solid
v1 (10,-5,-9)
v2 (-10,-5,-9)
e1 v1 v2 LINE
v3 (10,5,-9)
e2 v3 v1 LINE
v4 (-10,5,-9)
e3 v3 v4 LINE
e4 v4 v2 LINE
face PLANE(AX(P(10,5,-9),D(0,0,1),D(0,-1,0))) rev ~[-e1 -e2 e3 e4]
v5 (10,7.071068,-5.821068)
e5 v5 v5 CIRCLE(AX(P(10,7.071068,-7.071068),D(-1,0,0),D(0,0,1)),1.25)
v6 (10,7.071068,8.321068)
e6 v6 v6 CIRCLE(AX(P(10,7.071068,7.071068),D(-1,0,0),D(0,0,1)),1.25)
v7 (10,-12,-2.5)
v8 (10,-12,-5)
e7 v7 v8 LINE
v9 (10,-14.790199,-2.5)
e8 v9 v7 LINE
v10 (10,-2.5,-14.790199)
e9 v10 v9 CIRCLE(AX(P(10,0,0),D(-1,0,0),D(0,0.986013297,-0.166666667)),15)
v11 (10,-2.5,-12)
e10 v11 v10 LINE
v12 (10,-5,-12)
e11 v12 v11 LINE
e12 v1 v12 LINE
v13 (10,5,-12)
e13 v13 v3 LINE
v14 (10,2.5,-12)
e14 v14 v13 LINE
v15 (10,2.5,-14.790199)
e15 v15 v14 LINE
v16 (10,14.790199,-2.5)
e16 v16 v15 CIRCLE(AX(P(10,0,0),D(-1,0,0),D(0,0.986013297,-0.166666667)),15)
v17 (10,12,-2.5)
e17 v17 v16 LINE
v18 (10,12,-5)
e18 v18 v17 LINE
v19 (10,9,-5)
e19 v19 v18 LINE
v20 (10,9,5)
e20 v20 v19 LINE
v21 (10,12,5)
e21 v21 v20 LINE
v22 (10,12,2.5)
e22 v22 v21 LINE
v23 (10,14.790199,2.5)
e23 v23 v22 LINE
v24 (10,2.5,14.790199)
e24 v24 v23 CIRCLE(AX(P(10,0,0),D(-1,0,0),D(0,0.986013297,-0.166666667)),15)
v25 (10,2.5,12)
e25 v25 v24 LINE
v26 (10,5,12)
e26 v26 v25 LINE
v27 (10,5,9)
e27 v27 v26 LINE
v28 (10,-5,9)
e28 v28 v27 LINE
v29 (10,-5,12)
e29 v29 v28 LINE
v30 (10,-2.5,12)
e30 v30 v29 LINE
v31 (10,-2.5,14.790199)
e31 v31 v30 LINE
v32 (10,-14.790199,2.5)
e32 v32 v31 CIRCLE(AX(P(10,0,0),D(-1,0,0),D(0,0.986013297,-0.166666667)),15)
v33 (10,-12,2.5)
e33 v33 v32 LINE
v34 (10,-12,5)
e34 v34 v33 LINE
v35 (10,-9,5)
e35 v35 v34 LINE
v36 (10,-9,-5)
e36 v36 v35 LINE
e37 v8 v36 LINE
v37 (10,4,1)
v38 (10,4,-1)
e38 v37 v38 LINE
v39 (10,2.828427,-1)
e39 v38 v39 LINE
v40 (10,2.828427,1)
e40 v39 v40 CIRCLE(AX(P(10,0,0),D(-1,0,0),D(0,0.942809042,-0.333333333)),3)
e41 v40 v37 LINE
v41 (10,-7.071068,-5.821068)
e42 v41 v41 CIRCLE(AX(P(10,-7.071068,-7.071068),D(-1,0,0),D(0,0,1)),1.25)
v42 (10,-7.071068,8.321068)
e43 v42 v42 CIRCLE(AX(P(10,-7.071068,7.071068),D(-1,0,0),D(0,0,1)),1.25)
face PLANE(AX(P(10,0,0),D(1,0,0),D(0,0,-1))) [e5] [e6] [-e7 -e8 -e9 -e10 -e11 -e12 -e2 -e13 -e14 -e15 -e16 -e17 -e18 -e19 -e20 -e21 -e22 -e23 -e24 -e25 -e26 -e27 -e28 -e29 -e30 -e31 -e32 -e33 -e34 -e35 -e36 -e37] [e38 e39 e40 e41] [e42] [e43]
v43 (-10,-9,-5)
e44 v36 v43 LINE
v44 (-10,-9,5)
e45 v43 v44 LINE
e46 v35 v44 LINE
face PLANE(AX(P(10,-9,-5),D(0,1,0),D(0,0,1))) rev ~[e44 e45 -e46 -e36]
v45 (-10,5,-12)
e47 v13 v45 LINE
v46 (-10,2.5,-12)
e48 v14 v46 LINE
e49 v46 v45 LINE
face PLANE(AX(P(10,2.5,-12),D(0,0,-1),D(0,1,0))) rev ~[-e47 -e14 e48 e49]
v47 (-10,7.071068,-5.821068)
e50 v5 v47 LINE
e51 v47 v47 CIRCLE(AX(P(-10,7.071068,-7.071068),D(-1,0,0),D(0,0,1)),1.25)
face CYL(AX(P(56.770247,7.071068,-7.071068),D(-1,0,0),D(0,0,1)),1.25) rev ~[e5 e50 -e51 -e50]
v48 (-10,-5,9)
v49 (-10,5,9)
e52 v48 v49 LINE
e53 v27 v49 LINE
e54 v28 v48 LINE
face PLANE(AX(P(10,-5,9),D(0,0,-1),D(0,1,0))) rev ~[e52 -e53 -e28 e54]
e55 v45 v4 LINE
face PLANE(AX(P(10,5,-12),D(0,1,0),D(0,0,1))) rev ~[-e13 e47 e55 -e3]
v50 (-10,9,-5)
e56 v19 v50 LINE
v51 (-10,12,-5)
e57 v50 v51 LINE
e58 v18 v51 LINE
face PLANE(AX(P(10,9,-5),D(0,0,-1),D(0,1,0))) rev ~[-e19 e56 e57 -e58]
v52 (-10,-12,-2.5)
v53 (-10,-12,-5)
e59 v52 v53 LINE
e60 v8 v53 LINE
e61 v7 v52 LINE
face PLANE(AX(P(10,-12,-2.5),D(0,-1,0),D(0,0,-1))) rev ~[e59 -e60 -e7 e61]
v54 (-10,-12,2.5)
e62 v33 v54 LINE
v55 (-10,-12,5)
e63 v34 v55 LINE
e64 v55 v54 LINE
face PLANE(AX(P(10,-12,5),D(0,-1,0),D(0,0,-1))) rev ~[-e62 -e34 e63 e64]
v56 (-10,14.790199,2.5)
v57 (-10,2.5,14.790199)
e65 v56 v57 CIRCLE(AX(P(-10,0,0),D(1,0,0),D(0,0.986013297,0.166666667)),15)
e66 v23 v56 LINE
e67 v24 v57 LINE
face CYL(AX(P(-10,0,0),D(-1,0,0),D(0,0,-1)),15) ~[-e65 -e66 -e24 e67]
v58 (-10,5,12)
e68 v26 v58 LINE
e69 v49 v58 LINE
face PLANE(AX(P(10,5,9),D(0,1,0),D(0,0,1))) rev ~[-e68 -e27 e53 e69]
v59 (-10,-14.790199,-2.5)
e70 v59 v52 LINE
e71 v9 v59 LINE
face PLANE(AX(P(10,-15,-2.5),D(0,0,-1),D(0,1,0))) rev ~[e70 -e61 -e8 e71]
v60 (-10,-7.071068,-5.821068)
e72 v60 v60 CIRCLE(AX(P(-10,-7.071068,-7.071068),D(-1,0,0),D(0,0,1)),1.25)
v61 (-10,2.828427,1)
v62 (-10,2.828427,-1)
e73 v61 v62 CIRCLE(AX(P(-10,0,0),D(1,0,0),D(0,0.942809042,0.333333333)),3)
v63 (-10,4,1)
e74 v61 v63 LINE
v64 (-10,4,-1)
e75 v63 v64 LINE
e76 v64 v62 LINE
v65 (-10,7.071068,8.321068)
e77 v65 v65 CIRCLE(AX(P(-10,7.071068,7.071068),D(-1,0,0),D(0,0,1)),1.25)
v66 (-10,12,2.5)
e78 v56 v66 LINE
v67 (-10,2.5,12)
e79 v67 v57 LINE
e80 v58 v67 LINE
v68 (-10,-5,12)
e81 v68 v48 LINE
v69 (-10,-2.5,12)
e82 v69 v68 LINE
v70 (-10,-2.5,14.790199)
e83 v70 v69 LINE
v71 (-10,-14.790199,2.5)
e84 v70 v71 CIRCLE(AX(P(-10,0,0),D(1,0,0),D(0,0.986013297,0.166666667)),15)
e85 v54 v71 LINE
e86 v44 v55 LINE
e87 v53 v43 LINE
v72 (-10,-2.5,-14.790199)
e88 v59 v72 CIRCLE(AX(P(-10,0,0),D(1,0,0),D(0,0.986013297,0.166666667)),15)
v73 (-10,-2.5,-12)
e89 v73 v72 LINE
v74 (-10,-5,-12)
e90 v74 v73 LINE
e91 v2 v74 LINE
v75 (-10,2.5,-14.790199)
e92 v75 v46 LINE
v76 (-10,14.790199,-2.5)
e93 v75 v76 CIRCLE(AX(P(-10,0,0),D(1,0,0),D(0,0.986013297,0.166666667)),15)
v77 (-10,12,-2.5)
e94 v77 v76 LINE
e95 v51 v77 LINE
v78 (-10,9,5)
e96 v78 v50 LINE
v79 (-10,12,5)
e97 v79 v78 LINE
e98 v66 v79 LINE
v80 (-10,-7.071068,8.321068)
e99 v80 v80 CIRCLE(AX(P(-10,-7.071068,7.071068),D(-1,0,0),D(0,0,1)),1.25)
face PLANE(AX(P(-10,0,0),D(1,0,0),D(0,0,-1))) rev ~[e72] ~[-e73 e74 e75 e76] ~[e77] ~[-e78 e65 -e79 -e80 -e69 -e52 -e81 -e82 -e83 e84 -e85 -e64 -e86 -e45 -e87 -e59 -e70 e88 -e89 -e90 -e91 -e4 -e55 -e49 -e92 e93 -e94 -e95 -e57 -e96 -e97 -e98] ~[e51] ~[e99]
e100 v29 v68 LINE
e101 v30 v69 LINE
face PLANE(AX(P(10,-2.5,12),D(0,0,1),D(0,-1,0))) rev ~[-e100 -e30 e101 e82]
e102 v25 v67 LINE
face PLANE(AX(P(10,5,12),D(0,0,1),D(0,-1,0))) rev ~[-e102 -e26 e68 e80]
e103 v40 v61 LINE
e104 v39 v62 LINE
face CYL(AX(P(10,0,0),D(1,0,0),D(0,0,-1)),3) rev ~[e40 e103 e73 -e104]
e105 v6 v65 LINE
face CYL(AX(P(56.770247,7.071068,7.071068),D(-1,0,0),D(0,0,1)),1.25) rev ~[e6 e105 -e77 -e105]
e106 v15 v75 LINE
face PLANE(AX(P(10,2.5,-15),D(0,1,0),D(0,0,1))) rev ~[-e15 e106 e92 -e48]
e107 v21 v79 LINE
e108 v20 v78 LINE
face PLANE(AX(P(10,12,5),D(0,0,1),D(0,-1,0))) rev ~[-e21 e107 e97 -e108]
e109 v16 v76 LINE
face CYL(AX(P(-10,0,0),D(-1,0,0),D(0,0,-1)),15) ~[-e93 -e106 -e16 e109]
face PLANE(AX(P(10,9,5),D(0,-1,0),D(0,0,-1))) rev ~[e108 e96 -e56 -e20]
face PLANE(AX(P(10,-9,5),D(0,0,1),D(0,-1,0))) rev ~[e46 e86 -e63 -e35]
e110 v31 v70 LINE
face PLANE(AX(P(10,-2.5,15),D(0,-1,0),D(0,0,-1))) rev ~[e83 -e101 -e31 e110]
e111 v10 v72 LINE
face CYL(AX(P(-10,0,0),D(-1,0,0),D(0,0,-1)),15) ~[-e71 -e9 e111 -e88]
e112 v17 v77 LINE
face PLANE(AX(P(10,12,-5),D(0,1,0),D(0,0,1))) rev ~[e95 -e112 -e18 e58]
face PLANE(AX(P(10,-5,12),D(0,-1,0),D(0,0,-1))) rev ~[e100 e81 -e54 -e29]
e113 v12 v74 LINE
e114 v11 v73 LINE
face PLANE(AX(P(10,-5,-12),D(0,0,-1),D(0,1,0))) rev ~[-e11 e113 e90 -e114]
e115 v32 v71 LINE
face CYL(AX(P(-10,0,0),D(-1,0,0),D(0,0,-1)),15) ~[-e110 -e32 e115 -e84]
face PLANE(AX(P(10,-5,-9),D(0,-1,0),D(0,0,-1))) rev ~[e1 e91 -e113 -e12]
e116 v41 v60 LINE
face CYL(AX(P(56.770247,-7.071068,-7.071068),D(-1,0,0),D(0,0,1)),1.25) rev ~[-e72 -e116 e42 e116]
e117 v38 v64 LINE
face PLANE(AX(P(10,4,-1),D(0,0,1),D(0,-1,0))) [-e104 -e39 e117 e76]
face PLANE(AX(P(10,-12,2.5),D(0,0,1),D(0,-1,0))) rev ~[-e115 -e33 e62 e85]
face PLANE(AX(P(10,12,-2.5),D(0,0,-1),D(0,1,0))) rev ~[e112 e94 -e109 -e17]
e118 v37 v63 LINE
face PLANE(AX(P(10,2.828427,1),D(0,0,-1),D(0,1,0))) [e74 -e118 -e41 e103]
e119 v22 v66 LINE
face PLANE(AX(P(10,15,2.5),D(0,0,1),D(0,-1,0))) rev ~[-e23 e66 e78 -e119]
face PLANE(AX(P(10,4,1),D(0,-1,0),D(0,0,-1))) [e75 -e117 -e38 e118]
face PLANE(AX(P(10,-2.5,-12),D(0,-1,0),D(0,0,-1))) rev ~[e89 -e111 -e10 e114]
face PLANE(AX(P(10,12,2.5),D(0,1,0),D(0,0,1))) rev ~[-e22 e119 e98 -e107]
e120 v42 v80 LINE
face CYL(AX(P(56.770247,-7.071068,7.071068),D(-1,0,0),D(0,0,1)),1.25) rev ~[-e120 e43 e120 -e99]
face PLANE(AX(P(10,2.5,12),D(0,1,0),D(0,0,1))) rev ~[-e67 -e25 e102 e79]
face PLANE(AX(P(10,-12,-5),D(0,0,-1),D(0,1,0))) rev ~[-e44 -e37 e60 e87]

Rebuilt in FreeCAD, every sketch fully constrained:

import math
import FreeCAD as App
import Part
import Sketcher

V = App.Vector


def add_polygon(sketch, points):
    """Adds a closed chain of lines whose ends are joined by coincident constraints."""
    first, n = sketch.GeometryCount, len(points)
    for a, b in zip(points, points[1:] + points[:1]):
        sketch.addGeometry(Part.LineSegment(App.Vector(*a, 0), App.Vector(*b, 0)), False)
    for i in range(n):
        sketch.addConstraint(Sketcher.Constraint("Coincident", first + i, 2, first + (i + 1) % n, 1))

doc = App.newDocument("Part")
body = doc.addObject("PartDesign::Body", "Body")

# Sketch on YZ plane
sketch1 = doc.addObject("Sketcher::SketchObject", "Sketch")
body.addObject(sketch1)
sketch1.AttachmentSupport = (doc.YZ_Plane, [""])
sketch1.MapMode = "FlatFace"
sketch1.addGeometry(Part.Circle(V(0, 0, 0), V(0, 0, 1), 15), False)
sketch1.addConstraint([
    Sketcher.Constraint("Coincident", 0, 3, -1, 1),
    Sketcher.Constraint("Diameter", 0, 30.0),
])
pad1 = doc.addObject("PartDesign::Pad", "Pad")
body.addObject(pad1)
pad1.Profile = sketch1
pad1.Type = "TwoLengths"
pad1.Length = 10
pad1.Length2 = 10

# Sketch on YZ plane
sketch2 = doc.addObject("Sketcher::SketchObject", "Sketch001")
body.addObject(sketch2)
sketch2.AttachmentSupport = (doc.YZ_Plane, [""])
sketch2.MapMode = "FlatFace"
sketch2.AttachmentOffset = App.Placement(V(0, 0, 10), App.Rotation())
sketch2.addGeometry(Part.Circle(V(0, 0, 0), V(0, 0, 1), 3), False)
sketch2.addConstraint([
    Sketcher.Constraint("Coincident", 0, 3, -1, 1),
    Sketcher.Constraint("Diameter", 0, 6.0),
])
pocket1 = doc.addObject("PartDesign::Pocket", "Pocket")
body.addObject(pocket1)
pocket1.Profile = sketch2
pocket1.Type = "ThroughAll"

# Sketch on YZ plane
sketch3 = doc.addObject("Sketcher::SketchObject", "Sketch002")
body.addObject(sketch3)
sketch3.AttachmentSupport = (doc.YZ_Plane, [""])
sketch3.MapMode = "FlatFace"
sketch3.AttachmentOffset = App.Placement(V(0, 0, 10), App.Rotation())
add_polygon(sketch3, [(12, -5), (12, -2.5), (15, -2.5), (15, 2.5), (12, 2.5), (12, 5), (9, 5), (9, -5)])  # lines 0-7
sketch3.addConstraint([
    Sketcher.Constraint("Vertical", 0),
    Sketcher.Constraint("Horizontal", 1),
    Sketcher.Constraint("Vertical", 2),
    Sketcher.Constraint("Horizontal", 3),
    Sketcher.Constraint("Vertical", 4),
    Sketcher.Constraint("Horizontal", 5),
    Sketcher.Constraint("Vertical", 6),
    Sketcher.Constraint("Horizontal", 7),
    Sketcher.Constraint("Symmetric", 0, 2, 3, 2, -1),
    Sketcher.Constraint("Equal", 3, 5),
    Sketcher.Constraint("Equal", 0, 4),
    Sketcher.Constraint("DistanceX", 1, 1, 1, 2, 3.0),
    Sketcher.Constraint("DistanceY", 2, 1, 2, 2, 5.0),
    Sketcher.Constraint("DistanceY", 6, 2, 6, 1, 10.0),
    Sketcher.Constraint("DistanceX", -1, 1, 0, 2, 12.0),
])
pocket2 = doc.addObject("PartDesign::Pocket", "Pocket001")
body.addObject(pocket2)
pocket2.Profile = sketch3
pocket2.Type = "ThroughAll"

# Sketch on YZ plane
sketch4 = doc.addObject("Sketcher::SketchObject", "Sketch003")
body.addObject(sketch4)
sketch4.AttachmentSupport = (doc.YZ_Plane, [""])
sketch4.MapMode = "FlatFace"
sketch4.AttachmentOffset = App.Placement(V(0, 0, 10), App.Rotation())
sketch4.addGeometry([
    Part.Circle(V(7.1, 7.1, 0), V(0, 0, 1), 1.2),
    Part.Circle(V(-7.1, -7.1, 0), V(0, 0, 1), 1.2),
    Part.Circle(V(7.1, -7.1, 0), V(0, 0, 1), 1.2),
    Part.Circle(V(-7.1, 7.1, 0), V(0, 0, 1), 1.2),
], False)
sketch4.addConstraint([
    Sketcher.Constraint("Equal", 0, 1),
    Sketcher.Constraint("Equal", 1, 2),
    Sketcher.Constraint("Equal", 2, 3),
    Sketcher.Constraint("Symmetric", 0, 3, 1, 3, -1, 1),
    Sketcher.Constraint("Symmetric", 2, 3, 3, 3, -1, 1),
    Sketcher.Constraint("Symmetric", 1, 3, 2, 3, -2),
    Sketcher.Constraint("Diameter", 0, 2.5),
    Sketcher.Constraint("DistanceX", -1, 1, 0, 3, 7.071068),
    Sketcher.Constraint("DistanceY", -1, 1, 0, 3, 7.071068),
])
doc.recompute()
hole = doc.addObject("PartDesign::Hole", "Hole")
body.addObject(hole)
hole.Profile = sketch4
hole.ThreadType = "None"
hole.Diameter = 2.5
hole.DepthType = "ThroughAll"
doc.recompute()

polarpattern = doc.addObject("PartDesign::PolarPattern", "PolarPattern")
body.addObject(polarpattern)
polarpattern.Originals = [pocket2]
polarpattern.Axis = (doc.X_Axis, [""])
polarpattern.Angle = 360
polarpattern.Occurrences = 4
body.Tip = polarpattern

# Sketch on YZ plane
sketch5 = doc.addObject("Sketcher::SketchObject", "Sketch004")
body.addObject(sketch5)
sketch5.AttachmentSupport = (doc.YZ_Plane, [""])
sketch5.MapMode = "FlatFace"
sketch5.AttachmentOffset = App.Placement(V(0, 0, 10), App.Rotation())
sketch5.addGeometry([
    Part.LineSegment(V(4, -1, 0), V(4, 1, 0)),
    Part.LineSegment(V(4, 1, 0), V(2.8, 1, 0)),
    Part.ArcOfCircle(Part.Circle(V(0, 0, 0), V(0, 0, 1), 3), math.radians(-19), math.radians(19)),
    Part.LineSegment(V(2.8, -1, 0), V(4, -1, 0)),
], False)
sketch5.addConstraint([
    Sketcher.Constraint("Coincident", 0, 2, 1, 1),
    Sketcher.Constraint("Coincident", 1, 2, 2, 2),
    Sketcher.Constraint("Coincident", 2, 1, 3, 1),
    Sketcher.Constraint("Coincident", 3, 2, 0, 1),
    Sketcher.Constraint("Vertical", 0),
    Sketcher.Constraint("Horizontal", 1),
    Sketcher.Constraint("Horizontal", 3),
    Sketcher.Constraint("Coincident", 2, 3, -1, 1),
    Sketcher.Constraint("Vertical", 1, 2, 2, 1),
    Sketcher.Constraint("Radius", 2, 3.0),
    Sketcher.Constraint("DistanceY", 0, 1, 0, 2, 2.0),
    Sketcher.Constraint("DistanceX", -1, 1, 0, 2, 4.0),
])
pocket3 = doc.addObject("PartDesign::Pocket", "Pocket002")
body.addObject(pocket3)
pocket3.Profile = sketch5
pocket3.Type = "ThroughAll"

doc.recompute()
